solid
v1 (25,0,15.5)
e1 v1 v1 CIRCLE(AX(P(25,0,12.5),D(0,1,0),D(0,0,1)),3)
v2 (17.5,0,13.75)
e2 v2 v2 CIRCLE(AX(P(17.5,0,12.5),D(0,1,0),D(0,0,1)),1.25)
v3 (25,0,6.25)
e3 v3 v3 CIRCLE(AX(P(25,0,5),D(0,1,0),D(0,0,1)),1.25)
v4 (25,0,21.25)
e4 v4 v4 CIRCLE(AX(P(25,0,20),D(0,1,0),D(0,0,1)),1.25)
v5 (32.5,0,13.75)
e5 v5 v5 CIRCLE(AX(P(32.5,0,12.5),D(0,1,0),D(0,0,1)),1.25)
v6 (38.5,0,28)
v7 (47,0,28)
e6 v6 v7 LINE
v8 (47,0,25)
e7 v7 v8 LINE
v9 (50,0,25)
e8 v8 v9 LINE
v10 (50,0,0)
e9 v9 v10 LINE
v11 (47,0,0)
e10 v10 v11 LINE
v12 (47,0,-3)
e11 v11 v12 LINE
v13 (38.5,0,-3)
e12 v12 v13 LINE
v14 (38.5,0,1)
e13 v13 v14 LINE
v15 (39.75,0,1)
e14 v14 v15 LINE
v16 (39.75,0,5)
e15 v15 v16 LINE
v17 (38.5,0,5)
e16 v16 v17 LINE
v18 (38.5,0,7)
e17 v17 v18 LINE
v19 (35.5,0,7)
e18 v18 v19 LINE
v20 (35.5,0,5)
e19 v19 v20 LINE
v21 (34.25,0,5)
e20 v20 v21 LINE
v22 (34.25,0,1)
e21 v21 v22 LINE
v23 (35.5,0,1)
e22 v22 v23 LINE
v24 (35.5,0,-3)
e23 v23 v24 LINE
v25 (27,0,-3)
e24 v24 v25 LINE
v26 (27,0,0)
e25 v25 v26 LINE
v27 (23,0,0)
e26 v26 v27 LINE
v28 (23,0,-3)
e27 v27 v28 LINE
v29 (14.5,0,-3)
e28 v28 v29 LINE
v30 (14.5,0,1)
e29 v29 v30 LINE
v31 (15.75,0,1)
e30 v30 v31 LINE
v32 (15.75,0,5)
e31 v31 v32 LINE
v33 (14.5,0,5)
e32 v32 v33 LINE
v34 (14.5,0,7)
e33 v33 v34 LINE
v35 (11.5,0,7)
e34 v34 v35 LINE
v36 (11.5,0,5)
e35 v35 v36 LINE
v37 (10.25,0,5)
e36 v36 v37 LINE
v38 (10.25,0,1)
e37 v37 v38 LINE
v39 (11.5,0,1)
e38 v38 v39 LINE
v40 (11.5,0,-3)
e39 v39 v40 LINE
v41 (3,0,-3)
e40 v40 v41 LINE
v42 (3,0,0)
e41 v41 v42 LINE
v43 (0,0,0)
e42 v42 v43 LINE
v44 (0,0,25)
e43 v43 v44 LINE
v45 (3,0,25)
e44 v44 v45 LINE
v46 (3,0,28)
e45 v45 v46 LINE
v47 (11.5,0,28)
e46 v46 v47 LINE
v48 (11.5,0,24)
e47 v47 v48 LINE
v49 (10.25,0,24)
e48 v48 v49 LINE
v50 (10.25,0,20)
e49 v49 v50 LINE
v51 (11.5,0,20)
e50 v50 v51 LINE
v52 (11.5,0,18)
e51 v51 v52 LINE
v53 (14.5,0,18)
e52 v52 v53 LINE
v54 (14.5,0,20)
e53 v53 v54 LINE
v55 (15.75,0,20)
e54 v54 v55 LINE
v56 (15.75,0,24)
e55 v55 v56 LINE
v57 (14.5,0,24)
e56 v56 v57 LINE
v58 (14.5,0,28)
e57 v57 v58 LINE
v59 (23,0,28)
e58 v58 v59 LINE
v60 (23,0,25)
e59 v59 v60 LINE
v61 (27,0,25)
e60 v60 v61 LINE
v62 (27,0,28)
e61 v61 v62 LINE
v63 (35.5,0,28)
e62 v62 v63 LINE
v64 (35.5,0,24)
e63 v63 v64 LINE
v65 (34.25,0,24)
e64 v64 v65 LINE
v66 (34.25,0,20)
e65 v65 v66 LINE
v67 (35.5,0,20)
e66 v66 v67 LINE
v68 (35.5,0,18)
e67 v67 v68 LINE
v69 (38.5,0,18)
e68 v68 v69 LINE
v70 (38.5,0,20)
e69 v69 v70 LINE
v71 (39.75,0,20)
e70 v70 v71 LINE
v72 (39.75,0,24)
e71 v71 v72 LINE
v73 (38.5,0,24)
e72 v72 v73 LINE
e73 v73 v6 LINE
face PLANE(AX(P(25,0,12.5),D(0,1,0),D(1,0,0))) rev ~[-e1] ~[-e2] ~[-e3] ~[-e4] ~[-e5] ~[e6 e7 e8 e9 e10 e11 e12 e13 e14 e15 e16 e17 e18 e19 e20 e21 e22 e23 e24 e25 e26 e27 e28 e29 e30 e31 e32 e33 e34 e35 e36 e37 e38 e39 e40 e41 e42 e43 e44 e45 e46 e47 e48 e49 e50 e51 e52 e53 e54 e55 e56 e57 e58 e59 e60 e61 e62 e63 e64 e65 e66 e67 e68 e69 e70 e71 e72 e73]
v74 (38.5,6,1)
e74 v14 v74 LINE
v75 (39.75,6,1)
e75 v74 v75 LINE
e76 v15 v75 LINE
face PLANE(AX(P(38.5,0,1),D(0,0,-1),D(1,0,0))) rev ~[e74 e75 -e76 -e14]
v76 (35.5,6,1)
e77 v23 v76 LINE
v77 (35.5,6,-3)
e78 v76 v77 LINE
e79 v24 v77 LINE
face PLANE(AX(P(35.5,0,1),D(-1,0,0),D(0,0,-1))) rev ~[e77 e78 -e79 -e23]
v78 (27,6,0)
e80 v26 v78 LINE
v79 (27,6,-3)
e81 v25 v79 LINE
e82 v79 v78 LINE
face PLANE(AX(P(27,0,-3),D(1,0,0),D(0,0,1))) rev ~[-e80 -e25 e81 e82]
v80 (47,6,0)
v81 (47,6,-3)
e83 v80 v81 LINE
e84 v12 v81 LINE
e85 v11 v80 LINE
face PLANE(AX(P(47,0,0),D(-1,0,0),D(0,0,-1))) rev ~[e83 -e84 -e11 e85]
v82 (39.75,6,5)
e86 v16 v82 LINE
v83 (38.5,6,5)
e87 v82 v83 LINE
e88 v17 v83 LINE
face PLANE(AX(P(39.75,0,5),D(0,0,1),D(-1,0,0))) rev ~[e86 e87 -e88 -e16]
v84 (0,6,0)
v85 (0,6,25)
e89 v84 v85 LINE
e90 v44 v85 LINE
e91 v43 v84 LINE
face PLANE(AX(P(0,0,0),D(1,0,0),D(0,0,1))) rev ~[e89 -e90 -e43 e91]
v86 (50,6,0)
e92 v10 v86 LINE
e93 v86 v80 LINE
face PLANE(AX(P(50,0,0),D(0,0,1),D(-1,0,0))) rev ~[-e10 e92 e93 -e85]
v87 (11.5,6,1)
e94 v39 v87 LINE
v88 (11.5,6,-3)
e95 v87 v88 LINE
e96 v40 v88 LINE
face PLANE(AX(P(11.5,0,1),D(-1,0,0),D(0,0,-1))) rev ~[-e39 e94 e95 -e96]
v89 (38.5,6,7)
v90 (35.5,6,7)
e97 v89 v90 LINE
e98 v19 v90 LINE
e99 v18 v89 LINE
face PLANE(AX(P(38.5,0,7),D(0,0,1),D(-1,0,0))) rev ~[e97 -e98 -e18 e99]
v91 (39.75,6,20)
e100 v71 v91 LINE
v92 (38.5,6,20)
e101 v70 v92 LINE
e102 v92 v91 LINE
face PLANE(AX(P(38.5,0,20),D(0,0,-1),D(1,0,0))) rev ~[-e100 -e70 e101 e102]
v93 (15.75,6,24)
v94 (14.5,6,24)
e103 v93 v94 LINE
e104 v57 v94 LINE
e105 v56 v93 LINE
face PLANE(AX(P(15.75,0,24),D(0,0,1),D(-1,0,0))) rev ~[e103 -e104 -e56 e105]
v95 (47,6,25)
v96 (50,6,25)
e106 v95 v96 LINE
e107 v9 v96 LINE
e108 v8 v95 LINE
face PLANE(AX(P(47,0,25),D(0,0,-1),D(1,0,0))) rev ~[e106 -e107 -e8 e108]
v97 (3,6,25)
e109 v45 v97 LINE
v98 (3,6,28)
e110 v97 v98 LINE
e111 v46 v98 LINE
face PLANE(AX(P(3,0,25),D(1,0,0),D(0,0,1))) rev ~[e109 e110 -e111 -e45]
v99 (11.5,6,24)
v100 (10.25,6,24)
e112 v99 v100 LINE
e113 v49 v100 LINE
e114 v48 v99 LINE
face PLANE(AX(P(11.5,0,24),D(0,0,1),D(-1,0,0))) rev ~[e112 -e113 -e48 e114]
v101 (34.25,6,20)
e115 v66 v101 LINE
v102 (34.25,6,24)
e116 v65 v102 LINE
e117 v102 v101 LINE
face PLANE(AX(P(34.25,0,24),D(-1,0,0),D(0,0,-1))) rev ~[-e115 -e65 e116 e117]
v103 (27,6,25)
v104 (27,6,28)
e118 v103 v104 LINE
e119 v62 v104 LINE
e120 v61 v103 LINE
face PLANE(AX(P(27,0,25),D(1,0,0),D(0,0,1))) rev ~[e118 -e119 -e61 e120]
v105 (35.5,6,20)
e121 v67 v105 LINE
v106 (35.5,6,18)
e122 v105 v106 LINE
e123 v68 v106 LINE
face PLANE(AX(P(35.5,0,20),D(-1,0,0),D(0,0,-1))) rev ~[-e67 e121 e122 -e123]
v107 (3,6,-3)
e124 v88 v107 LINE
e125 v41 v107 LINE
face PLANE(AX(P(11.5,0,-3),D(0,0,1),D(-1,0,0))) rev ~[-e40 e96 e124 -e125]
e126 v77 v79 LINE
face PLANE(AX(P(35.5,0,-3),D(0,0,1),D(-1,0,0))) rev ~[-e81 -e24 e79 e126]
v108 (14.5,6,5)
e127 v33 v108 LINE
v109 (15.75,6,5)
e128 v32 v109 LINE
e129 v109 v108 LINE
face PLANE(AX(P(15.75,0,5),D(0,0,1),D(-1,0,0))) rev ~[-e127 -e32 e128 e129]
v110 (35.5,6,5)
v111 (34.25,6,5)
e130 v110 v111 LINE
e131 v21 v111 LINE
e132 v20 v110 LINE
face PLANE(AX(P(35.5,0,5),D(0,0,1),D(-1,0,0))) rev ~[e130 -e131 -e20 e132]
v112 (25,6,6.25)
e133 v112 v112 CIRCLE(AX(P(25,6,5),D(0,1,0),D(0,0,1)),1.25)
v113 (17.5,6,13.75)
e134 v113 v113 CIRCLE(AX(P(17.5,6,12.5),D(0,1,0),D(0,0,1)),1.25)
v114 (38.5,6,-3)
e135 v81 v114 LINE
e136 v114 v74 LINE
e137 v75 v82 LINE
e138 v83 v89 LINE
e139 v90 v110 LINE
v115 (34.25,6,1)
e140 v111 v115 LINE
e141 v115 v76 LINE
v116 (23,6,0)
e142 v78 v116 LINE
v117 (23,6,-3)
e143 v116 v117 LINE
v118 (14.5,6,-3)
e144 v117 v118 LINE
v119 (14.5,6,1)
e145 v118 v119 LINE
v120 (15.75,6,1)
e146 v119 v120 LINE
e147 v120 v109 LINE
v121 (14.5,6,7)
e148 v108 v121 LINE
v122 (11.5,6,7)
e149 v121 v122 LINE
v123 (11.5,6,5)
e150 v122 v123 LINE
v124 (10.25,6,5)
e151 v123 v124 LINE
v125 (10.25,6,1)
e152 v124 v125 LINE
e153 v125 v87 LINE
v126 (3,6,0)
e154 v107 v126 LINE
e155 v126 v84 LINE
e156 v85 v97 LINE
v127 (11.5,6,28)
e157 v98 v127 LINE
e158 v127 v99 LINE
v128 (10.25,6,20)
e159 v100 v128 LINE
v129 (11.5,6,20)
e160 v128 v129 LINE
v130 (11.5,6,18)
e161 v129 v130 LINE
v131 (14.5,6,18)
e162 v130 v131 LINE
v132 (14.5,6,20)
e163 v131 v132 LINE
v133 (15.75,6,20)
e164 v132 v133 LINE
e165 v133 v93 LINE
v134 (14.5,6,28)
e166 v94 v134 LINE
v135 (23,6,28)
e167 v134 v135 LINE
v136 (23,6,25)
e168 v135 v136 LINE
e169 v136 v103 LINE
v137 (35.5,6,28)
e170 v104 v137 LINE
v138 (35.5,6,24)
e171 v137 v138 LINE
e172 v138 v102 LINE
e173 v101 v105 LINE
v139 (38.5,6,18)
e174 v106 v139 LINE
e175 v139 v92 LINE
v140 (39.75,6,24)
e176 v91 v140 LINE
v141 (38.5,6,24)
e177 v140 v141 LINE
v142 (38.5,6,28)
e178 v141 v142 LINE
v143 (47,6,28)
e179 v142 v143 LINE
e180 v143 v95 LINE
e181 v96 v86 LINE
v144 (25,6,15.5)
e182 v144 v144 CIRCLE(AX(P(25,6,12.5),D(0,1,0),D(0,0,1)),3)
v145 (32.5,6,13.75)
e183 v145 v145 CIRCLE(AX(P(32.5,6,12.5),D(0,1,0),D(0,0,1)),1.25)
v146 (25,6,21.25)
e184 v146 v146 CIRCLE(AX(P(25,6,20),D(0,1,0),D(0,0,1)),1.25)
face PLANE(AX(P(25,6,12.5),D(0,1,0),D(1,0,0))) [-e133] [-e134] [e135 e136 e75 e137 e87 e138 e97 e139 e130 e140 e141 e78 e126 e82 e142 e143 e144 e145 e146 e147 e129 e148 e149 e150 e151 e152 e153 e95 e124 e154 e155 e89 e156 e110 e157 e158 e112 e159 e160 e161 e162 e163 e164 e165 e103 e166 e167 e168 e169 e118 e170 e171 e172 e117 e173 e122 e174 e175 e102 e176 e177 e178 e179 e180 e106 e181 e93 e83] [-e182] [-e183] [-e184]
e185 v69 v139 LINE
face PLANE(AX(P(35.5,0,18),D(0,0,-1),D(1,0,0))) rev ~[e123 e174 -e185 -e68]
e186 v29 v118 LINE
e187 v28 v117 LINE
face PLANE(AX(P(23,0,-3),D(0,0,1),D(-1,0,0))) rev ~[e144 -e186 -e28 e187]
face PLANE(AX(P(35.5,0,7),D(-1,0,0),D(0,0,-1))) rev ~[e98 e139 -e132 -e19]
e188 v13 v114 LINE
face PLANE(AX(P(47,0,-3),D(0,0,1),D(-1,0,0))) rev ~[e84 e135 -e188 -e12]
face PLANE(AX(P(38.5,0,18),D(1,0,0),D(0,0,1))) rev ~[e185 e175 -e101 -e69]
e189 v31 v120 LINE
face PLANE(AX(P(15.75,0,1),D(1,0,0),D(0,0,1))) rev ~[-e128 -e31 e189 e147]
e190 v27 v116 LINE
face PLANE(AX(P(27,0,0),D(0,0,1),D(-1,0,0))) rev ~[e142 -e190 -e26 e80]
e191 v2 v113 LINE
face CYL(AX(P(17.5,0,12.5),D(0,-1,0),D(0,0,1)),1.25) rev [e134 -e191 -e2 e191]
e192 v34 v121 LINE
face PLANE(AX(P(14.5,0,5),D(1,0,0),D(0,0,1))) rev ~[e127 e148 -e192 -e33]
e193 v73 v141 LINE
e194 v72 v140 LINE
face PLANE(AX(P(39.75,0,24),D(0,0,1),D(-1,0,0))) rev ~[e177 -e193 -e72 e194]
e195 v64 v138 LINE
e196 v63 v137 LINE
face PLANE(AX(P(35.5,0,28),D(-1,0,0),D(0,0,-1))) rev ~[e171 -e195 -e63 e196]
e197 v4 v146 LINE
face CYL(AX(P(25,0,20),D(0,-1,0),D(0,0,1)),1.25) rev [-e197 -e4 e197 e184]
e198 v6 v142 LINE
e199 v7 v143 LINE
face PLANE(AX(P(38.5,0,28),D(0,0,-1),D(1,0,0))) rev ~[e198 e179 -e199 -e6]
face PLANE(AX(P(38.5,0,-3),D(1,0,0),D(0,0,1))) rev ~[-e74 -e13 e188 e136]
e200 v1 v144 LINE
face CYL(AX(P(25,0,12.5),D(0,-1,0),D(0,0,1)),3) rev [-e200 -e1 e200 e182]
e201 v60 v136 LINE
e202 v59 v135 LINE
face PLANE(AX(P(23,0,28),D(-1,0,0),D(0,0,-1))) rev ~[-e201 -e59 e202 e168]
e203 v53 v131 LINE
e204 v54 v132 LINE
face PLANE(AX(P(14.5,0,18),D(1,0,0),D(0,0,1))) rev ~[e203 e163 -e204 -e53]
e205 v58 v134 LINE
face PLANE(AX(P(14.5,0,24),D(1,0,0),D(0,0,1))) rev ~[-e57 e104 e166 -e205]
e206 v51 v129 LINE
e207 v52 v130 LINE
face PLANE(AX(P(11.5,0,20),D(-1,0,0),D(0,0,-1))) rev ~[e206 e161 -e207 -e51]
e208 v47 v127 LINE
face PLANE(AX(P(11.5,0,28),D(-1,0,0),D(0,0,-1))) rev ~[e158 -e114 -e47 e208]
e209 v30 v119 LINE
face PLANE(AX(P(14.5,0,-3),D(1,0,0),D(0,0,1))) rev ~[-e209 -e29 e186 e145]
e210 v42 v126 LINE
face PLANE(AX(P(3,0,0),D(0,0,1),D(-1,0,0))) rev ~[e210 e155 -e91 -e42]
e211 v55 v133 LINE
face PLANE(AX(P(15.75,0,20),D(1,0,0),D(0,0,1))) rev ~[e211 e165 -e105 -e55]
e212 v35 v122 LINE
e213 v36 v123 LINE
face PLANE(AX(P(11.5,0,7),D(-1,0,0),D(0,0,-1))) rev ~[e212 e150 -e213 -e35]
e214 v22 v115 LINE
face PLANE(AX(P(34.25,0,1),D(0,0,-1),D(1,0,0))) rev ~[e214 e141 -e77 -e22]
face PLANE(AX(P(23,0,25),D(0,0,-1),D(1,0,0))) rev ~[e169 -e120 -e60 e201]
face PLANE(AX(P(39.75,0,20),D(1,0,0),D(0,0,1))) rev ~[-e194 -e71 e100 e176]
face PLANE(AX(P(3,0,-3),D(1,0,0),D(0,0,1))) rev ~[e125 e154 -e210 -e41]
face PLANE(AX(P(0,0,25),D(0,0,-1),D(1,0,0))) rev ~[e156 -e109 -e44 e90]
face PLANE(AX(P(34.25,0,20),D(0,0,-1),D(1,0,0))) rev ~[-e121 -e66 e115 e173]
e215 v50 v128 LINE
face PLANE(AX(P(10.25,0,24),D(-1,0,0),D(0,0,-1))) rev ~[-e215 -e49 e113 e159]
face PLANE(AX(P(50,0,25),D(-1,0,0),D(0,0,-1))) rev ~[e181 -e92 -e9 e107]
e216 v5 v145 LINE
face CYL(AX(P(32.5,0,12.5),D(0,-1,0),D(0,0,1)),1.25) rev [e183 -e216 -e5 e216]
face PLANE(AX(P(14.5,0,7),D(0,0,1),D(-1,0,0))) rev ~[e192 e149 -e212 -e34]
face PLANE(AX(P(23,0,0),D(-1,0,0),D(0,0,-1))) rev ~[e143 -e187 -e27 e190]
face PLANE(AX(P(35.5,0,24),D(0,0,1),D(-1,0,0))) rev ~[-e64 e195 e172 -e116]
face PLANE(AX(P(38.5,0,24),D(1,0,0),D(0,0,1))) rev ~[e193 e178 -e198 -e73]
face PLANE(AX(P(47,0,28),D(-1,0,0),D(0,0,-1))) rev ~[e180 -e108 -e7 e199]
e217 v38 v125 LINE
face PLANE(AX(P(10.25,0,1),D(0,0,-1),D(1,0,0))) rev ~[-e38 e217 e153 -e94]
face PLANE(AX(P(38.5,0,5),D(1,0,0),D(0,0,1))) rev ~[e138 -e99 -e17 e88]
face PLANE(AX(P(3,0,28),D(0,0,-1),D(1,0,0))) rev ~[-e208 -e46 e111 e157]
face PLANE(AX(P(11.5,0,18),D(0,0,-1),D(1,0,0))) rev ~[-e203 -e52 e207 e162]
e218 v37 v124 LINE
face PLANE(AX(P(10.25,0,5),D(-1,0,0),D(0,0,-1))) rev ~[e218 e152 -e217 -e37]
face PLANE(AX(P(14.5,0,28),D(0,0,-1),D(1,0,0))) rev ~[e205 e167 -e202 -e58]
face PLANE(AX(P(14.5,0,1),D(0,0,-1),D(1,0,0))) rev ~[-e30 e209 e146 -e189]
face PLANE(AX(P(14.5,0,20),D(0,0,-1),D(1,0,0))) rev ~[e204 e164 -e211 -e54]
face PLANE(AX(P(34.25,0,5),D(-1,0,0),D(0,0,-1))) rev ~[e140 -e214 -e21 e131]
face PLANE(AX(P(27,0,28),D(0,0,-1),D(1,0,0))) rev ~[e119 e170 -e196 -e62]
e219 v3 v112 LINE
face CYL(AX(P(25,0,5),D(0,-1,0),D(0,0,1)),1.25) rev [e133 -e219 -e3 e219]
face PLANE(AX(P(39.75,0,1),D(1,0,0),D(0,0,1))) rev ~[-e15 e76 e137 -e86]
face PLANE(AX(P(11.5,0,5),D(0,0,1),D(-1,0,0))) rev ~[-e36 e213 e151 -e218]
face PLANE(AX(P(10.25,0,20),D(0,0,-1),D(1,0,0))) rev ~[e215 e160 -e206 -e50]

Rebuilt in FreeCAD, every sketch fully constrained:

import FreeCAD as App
import Part
import Sketcher
from FreeCAD import Vector
Q = App.Units.Quantity


def add_polygon(sketch, points):
    """Adds a closed chain of lines whose ends are joined by coincident constraints."""
    first, n = sketch.GeometryCount, len(points)
    for a, b in zip(points, points[1:] + points[:1]):
        sketch.addGeometry(Part.LineSegment(App.Vector(*a, 0), App.Vector(*b, 0)), False)
    for i in range(n):
        sketch.addConstraint(Sketcher.Constraint("Coincident", first + i, 2, first + (i + 1) % n, 1))

doc = App.newDocument("Part")
body = doc.addObject("PartDesign::Body", "Body")

# Sketch on XZ plane
sketch1 = doc.addObject("Sketcher::SketchObject", "Sketch")
body.addObject(sketch1)
sketch1.AttachmentSupport = (doc.XZ_Plane, [""])
sketch1.MapMode = "FlatFace"
add_polygon(sketch1, [(35.5, 24), (34.2, 24), (34.2, 20), (35.5, 20), (35.5, 18), (38.5, 18), (38.5, 20), (39.8, 20), (39.8, 24), (38.5, 24), (38.5, 28), (47, 28), (47, 25), (50, 25), (50, 0), (47, 0), (47, -3), (38.5, -3), (38.5, 1), (39.8, 1), (39.8, 5), (38.5, 5), (38.5, 7), (35.5, 7), (35.5, 5), (34.2, 5), (34.2, 1), (35.5, 1), (35.5, -3), (27, -3), (27, 0), (23, 0), (23, -3), (14.5, -3), (14.5, 1), (15.8, 1), (15.8, 5), (14.5, 5), (14.5, 7), (11.5, 7), (11.5, 5), (10.2, 5), (10.2, 1), (11.5, 1), (11.5, -3), (3, -3), (3, 0), (0, 0), (0, 25), (3, 25), (3, 28), (11.5, 28), (11.5, 24), (10.2, 24), (10.2, 20), (11.5, 20), (11.5, 18), (14.5, 18), (14.5, 20), (15.8, 20), (15.8, 24), (14.5, 24), (14.5, 28), (23, 28), (23, 25), (27, 25), (27, 28), (35.5, 28)])  # lines 0-67
sketch1.addGeometry(Part.Circle(Vector(25, 20, 0), Vector(0, 0, 1), 1.2), False)  # 68
sketch1.addGeometry(Part.Circle(Vector(17.5, 12.5, 0), Vector(0, 0, 1), 1.2), False)  # 69
sketch1.addGeometry(Part.Circle(Vector(25, 12.5, 0), Vector(0, 0, 1), 3), False)  # 70
sketch1.addGeometry(Part.Circle(Vector(32.5, 12.5, 0), Vector(0, 0, 1), 1.2), False)  # 71
sketch1.addGeometry(Part.Circle(Vector(25, 5, 0), Vector(0, 0, 1), 1.2), False)  # 72
sketch1.addConstraint([
    Sketcher.Constraint("Horizontal", 0),
    Sketcher.Constraint("Vertical", 1),
    Sketcher.Constraint("Horizontal", 2),
    Sketcher.Constraint("Vertical", 3),
    Sketcher.Constraint("Horizontal", 4),
    Sketcher.Constraint("Vertical", 5),
    Sketcher.Constraint("Horizontal", 6),
    Sketcher.Constraint("Vertical", 7),
    Sketcher.Constraint("Horizontal", 8),
    Sketcher.Constraint("Vertical", 9),
    Sketcher.Constraint("Horizontal", 10),
    Sketcher.Constraint("Vertical", 11),
    Sketcher.Constraint("Horizontal", 12),
    Sketcher.Constraint("Vertical", 13),
    Sketcher.Constraint("Horizontal", 14),
    Sketcher.Constraint("Vertical", 15),
    Sketcher.Constraint("Horizontal", 16),
    Sketcher.Constraint("Vertical", 17),
    Sketcher.Constraint("Horizontal", 18),
    Sketcher.Constraint("Vertical", 19),
    Sketcher.Constraint("Horizontal", 20),
    Sketcher.Constraint("Vertical", 21),
    Sketcher.Constraint("Horizontal", 22),
    Sketcher.Constraint("Vertical", 23),
    Sketcher.Constraint("Horizontal", 24),
    Sketcher.Constraint("Vertical", 25),
    Sketcher.Constraint("Horizontal", 26),
    Sketcher.Constraint("Vertical", 27),
    Sketcher.Constraint("Horizontal", 28),
    Sketcher.Constraint("Vertical", 29),
    Sketcher.Constraint("Horizontal", 30),
    Sketcher.Constraint("Vertical", 31),
    Sketcher.Constraint("Horizontal", 32),
    Sketcher.Constraint("Vertical", 33),
    Sketcher.Constraint("Horizontal", 34),
    Sketcher.Constraint("Vertical", 35),
    Sketcher.Constraint("Horizontal", 36),
    Sketcher.Constraint("Vertical", 37),
    Sketcher.Constraint("Horizontal", 38),
    Sketcher.Constraint("Vertical", 39),
    Sketcher.Constraint("Horizontal", 40),
    Sketcher.Constraint("Vertical", 41),
    Sketcher.Constraint("Horizontal", 42),
    Sketcher.Constraint("Vertical", 43),
    Sketcher.Constraint("Horizontal", 44),
    Sketcher.Constraint("Vertical", 45),
    Sketcher.Constraint("Horizontal", 46),
    Sketcher.Constraint("Vertical", 47),
    Sketcher.Constraint("Horizontal", 48),
    Sketcher.Constraint("Vertical", 49),
    Sketcher.Constraint("Horizontal", 50),
    Sketcher.Constraint("Vertical", 51),
    Sketcher.Constraint("Horizontal", 52),
    Sketcher.Constraint("Vertical", 53),
    Sketcher.Constraint("Horizontal", 54),
    Sketcher.Constraint("Vertical", 55),
    Sketcher.Constraint("Horizontal", 56),
    Sketcher.Constraint("Vertical", 57),
    Sketcher.Constraint("Horizontal", 58),
    Sketcher.Constraint("Vertical", 59),
    Sketcher.Constraint("Horizontal", 60),
    Sketcher.Constraint("Vertical", 61),
    Sketcher.Constraint("Horizontal", 62),
    Sketcher.Constraint("Vertical", 63),
    Sketcher.Constraint("Horizontal", 64),
    Sketcher.Constraint("Vertical", 65),
    Sketcher.Constraint("Horizontal", 66),
    Sketcher.Constraint("Vertical", 67),
    Sketcher.Constraint("Coincident", 46, 2, -1, 1),
    Sketcher.Constraint("Equal", 68, 69),
    Sketcher.Constraint("Equal", 69, 71),
    Sketcher.Constraint("Equal", 71, 72),
    Sketcher.Constraint("PointOnObject", 13, 2, -1),
    Sketcher.Constraint("PointOnObject", 29, 2, -1),
    Sketcher.Constraint("Horizontal", 69, 3, 70, 3),
    Sketcher.Constraint("Horizontal", 70, 3, 71, 3),
    Sketcher.Constraint("Horizontal", 68, 3, 1, 2),
    Sketcher.Constraint("Horizontal", 2, 2, 5, 2),
    Sketcher.Constraint("Horizontal", 0, 2, 7, 2),
    Sketcher.Constraint("Horizontal", 72, 3, 19, 2),
    Sketcher.Constraint("Horizontal", 20, 2, 23, 2),
    Sketcher.Constraint("Horizontal", 18, 2, 25, 2),
    Sketcher.Constraint("Horizontal", 16, 2, 27, 2),
    Sketcher.Constraint("Horizontal", 28, 2, 31, 2),
    Sketcher.Constraint("Horizontal", 26, 2, 33, 2),
    Sketcher.Constraint("Horizontal", 24, 2, 35, 2),
    Sketcher.Constraint("Horizontal", 22, 2, 37, 2),
    Sketcher.Constraint("Horizontal", 36, 2, 39, 2),
    Sketcher.Constraint("Horizontal", 34, 2, 41, 2),
    Sketcher.Constraint("Horizontal", 32, 2, 43, 2),
    Sketcher.Constraint("Horizontal", 12, 2, 47, 2),
    Sketcher.Constraint("Horizontal", 10, 2, 49, 2),
    Sketcher.Constraint("Horizontal", 8, 2, 51, 2),
    Sketcher.Constraint("Horizontal", 6, 2, 53, 2),
    Sketcher.Constraint("Horizontal", 4, 2, 55, 2),
    Sketcher.Constraint("Horizontal", 54, 2, 57, 2),
    Sketcher.Constraint("Horizontal", 52, 2, 59, 2),
    Sketcher.Constraint("Horizontal", 50, 2, 61, 2),
    Sketcher.Constraint("Horizontal", 48, 2, 63, 2),
    Sketcher.Constraint("Horizontal", 62, 2, 65, 2),
    Sketcher.Constraint("Vertical", 68, 3, 70, 3),
    Sketcher.Constraint("Vertical", 70, 3, 72, 3),
    Sketcher.Constraint("Vertical", 5, 2, 8, 2),
    Sketcher.Constraint("Vertical", 11, 2, 14, 2),
    Sketcher.Constraint("Vertical", 9, 2, 16, 2),
    Sketcher.Constraint("Vertical", 7, 2, 18, 2),
    Sketcher.Constraint("Vertical", 17, 2, 20, 2),
    Sketcher.Constraint("Vertical", 3, 2, 22, 2),
    Sketcher.Constraint("Vertical", 1, 2, 24, 2),
    Sketcher.Constraint("Vertical", 23, 2, 26, 2),
    Sketcher.Constraint("Vertical", 33, 2, 36, 2),
    Sketcher.Constraint("Vertical", 39, 2, 42, 2),
    Sketcher.Constraint("Vertical", 45, 2, 48, 2),
    Sketcher.Constraint("Vertical", 43, 2, 50, 2),
    Sketcher.Constraint("Vertical", 41, 2, 52, 2),
    Sketcher.Constraint("Vertical", 51, 2, 54, 2),
    Sketcher.Constraint("Vertical", 37, 2, 56, 2),
    Sketcher.Constraint("Vertical", 35, 2, 58, 2),
    Sketcher.Constraint("Vertical", 57, 2, 60, 2),
    Sketcher.Constraint("Vertical", 31, 2, 62, 2),
    Sketcher.Constraint("Vertical", 29, 2, 64, 2),
    Sketcher.Constraint("Vertical", 27, 2, 66, 2),
    Sketcher.Constraint("Equal", 2, 6),
    Sketcher.Constraint("Equal", 4, 12),
    Sketcher.Constraint("Equal", 16, 28),
    Sketcher.Constraint("Equal", 28, 32),
    Sketcher.Constraint("Equal", 26, 34),
    Sketcher.Constraint("Equal", 22, 38),
    Sketcher.Constraint("Equal", 36, 40),
    Sketcher.Constraint("Equal", 32, 44),
    Sketcher.Constraint("Equal", 38, 46),
    Sketcher.Constraint("Equal", 64, 1),
    Sketcher.Constraint("Equal", 7, 9),
    Sketcher.Constraint("Equal", 56, 11),
    Sketcher.Constraint("Equal", 11, 15),
    Sketcher.Constraint("Equal", 9, 17),
    Sketcher.Constraint("Equal", 17, 19),
    Sketcher.Constraint("Equal", 5, 21),
    Sketcher.Constraint("Diameter", 70, Q("6 mm")),
    Sketcher.Constraint("Diameter", 68, Q("2.5 mm")),
    Sketcher.Constraint("DistanceX", 4, 1, 4, 2, Q("3 mm")),
    Sketcher.Constraint("DistanceX", 30, 2, 30, 1, Q("4 mm")),
    Sketcher.Constraint("DistanceY", 3, 2, 3, 1, Q("2 mm")),
    Sketcher.Constraint("DistanceY", 13, 2, 13, 1, Q("25 mm")),
    Sketcher.Constraint("DistanceX", 10, 1, 10, 2, Q("8.5 mm")),
    Sketcher.Constraint("DistanceX", -1, 1, 68, 3, Q("25 mm")),
    Sketcher.Constraint("DistanceX", 0, 2, 0, 1, Q("1.25 mm")),
    Sketcher.Constraint("DistanceX", -1, 1, 69, 3, Q("17.5 mm")),
    Sketcher.Constraint("DistanceY", -1, 1, 69, 3, Q("12.5 mm")),
    Sketcher.Constraint("DistanceX", -1, 1, 71, 3, Q("32.5 mm")),
])
pad1 = doc.addObject("PartDesign::Pad", "Pad")
body.addObject(pad1)
pad1.Profile = sketch1
pad1.Length = 6
pad1.Reversed = True

doc.recompute()
